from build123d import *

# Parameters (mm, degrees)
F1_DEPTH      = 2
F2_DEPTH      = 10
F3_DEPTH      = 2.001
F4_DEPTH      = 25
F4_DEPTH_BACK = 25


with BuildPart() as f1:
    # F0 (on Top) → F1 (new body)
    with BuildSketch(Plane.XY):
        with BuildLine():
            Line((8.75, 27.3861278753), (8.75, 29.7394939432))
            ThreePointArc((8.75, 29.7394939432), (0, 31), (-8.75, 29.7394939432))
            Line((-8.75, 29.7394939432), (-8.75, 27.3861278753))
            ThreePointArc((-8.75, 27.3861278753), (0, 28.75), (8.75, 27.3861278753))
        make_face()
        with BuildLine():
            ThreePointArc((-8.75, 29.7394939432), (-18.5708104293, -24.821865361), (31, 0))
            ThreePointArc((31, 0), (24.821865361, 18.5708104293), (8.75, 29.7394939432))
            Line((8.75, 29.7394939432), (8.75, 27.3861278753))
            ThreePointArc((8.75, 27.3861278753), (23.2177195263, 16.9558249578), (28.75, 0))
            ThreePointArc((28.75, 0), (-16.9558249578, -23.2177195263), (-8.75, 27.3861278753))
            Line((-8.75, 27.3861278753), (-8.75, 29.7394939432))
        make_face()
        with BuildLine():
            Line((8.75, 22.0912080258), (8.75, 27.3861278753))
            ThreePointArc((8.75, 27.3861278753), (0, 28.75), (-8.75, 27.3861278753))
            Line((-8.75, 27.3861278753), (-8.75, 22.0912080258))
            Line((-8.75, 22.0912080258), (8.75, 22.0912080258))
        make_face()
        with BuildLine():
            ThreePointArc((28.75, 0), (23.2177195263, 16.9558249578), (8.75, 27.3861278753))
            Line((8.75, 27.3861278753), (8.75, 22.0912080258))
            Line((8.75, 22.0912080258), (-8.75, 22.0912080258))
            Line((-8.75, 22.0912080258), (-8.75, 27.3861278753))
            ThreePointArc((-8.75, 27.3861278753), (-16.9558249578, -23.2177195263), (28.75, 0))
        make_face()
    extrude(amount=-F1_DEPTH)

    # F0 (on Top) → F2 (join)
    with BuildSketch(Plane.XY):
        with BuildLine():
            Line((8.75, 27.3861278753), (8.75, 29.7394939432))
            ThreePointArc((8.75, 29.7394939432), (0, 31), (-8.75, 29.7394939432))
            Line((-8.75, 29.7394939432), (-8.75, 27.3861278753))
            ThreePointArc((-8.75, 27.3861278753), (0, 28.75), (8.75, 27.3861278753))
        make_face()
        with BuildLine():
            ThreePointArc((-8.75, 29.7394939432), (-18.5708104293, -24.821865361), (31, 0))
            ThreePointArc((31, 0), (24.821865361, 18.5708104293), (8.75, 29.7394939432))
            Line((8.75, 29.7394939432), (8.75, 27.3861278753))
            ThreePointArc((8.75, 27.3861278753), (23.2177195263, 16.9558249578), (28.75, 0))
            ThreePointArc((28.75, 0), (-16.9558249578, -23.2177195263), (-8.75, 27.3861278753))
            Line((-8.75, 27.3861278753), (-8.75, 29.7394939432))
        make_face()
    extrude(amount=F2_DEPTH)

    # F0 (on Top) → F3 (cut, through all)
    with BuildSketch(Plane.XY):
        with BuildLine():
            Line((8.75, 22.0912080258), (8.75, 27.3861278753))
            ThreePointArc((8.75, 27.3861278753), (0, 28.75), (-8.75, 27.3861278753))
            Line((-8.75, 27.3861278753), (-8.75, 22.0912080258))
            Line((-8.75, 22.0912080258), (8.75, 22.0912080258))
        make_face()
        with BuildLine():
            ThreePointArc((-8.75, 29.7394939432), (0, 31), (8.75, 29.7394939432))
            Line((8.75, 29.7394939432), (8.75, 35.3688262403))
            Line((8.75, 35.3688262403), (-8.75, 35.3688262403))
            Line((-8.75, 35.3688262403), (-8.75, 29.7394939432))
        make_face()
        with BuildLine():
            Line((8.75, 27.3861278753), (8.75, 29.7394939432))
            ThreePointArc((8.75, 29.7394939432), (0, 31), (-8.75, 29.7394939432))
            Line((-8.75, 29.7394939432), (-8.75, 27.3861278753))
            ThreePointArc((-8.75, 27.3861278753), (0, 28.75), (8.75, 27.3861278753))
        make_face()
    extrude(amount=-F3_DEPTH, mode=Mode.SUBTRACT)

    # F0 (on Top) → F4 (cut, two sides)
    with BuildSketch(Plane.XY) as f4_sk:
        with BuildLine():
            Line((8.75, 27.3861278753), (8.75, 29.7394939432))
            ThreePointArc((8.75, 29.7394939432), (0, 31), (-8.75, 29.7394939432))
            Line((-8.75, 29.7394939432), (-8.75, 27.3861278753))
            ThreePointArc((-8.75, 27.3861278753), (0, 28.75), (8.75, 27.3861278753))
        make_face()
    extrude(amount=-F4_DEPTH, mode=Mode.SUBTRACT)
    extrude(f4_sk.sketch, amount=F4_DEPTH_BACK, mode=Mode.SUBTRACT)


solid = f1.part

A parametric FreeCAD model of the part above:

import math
import FreeCAD as App
import Part
import Sketcher
from FreeCAD import Vector
Q = App.Units.Quantity

doc = App.newDocument("Part")
body = doc.addObject("PartDesign::Body", "Body")

# Sketch on XY plane
sketch1 = doc.addObject("Sketcher::SketchObject", "Sketch")
body.addObject(sketch1)
sketch1.AttachmentSupport = (doc.XY_Plane, [""])
sketch1.MapMode = "FlatFace"
sketch1.addGeometry([
    Part.ArcOfCircle(Part.Circle(Vector(0, 0, 0), Vector(0, 0, 1), 31), math.radians(73.604981), math.radians(106.395019)),
    Part.ArcOfCircle(Part.Circle(Vector(0, 0, 0), Vector(0, 0, 1), 31), math.radians(106.395019), math.radians(360)),
    Part.ArcOfCircle(Part.Circle(Vector(0, 0, 0), Vector(0, 0, 1), 31), math.radians(0), math.radians(73.604981)),
], False)
sketch1.addConstraint([
    Sketcher.Constraint("Tangent", 0, 2, 1, 1),
    Sketcher.Constraint("Tangent", 1, 2, 2, 1),
    Sketcher.Constraint("Tangent", 2, 2, 0, 1),
    Sketcher.Constraint("Coincident", 0, 3, -1, 1),
    Sketcher.Constraint("PointOnObject", 1, 2, -1),
    Sketcher.Constraint("Horizontal", 0, 2, 2, 2),
    Sketcher.Constraint("Radius", 0, Q("31 mm")),
    Sketcher.Constraint("DistanceX", 0, 2, 2, 2, Q("17.5 mm")),
])
pad1 = doc.addObject("PartDesign::Pad", "Pad")
body.addObject(pad1)
pad1.Profile = sketch1
pad1.Length = 2
pad1.Reversed = True

# Sketch on XY plane
sketch2 = doc.addObject("Sketcher::SketchObject", "Sketch001")
body.addObject(sketch2)
sketch2.AttachmentSupport = (doc.XY_Plane, [""])
sketch2.MapMode = "FlatFace"
sketch2.addGeometry([
    Part.ArcOfCircle(Part.Circle(Vector(0, 0, 0), Vector(0, 0, 1), 31), math.radians(73.604981), math.radians(106.395019)),  # 0
    Part.ArcOfCircle(Part.Circle(Vector(0, 0, 0), Vector(0, 0, 1), 31), math.radians(106.395019), math.radians(360)),  # 1
    Part.ArcOfCircle(Part.Circle(Vector(0, 0, 0), Vector(0, 0, 1), 31), math.radians(0), math.radians(73.604981)),  # 2
    Part.ArcOfCircle(Part.Circle(Vector(0, 0, 0), Vector(0, 0, 1), 28.75), math.radians(72.281068), math.radians(107.718932)),  # 3
    Part.ArcOfCircle(Part.Circle(Vector(0, 0, 0), Vector(0, 0, 1), 28.75), math.radians(0), math.radians(72.281068)),  # 4
    Part.ArcOfCircle(Part.Circle(Vector(0, 0, 0), Vector(0, 0, 1), 28.75), math.radians(107.718932), math.radians(360)),  # 5
], False)
sketch2.addConstraint([
    Sketcher.Constraint("Tangent", 0, 2, 1, 1),
    Sketcher.Constraint("Tangent", 1, 2, 2, 1),
    Sketcher.Constraint("Tangent", 2, 2, 0, 1),
    Sketcher.Constraint("Tangent", 3, 1, 4, 2),
    Sketcher.Constraint("Tangent", 4, 1, 5, 2),
    Sketcher.Constraint("Tangent", 5, 1, 3, 2),
    Sketcher.Constraint("Coincident", 0, 3, -1, 1),
    Sketcher.Constraint("Coincident", 3, 3, -1, 1),
    Sketcher.Constraint("PointOnObject", 1, 2, -1),
    Sketcher.Constraint("PointOnObject", 4, 1, -1),
    Sketcher.Constraint("Horizontal", 0, 2, 2, 2),
    Sketcher.Constraint("Horizontal", 3, 1, 5, 1),
    Sketcher.Constraint("Vertical", 2, 2, 3, 1),
    Sketcher.Constraint("Radius", 0, Q("31 mm")),
    Sketcher.Constraint("Radius", 3, Q("28.75 mm")),
    Sketcher.Constraint("DistanceX", 0, 2, 2, 2, Q("17.5 mm")),
])
pad2 = doc.addObject("PartDesign::Pad", "Pad001")
body.addObject(pad2)
pad2.Profile = sketch2
pad2.Length = 10

# Sketch on XY plane
sketch3 = doc.addObject("Sketcher::SketchObject", "Sketch002")
body.addObject(sketch3)
sketch3.AttachmentSupport = (doc.XY_Plane, [""])
sketch3.MapMode = "FlatFace"
sketch3.addGeometry([
    Part.LineSegment(Vector(8.75, 22.091208, 0), Vector(8.75, 35.368826, 0)),
    Part.LineSegment(Vector(8.75, 35.368826, 0), Vector(-8.75, 35.368826, 0)),
    Part.LineSegment(Vector(-8.75, 35.368826, 0), Vector(-8.75, 22.091208, 0)),
    Part.LineSegment(Vector(-8.75, 22.091208, 0), Vector(8.75, 22.091208, 0)),
], False)
sketch3.addConstraint([
    Sketcher.Constraint("Coincident", 0, 2, 1, 1),
    Sketcher.Constraint("Coincident", 1, 2, 2, 1),
    Sketcher.Constraint("Coincident", 2, 2, 3, 1),
    Sketcher.Constraint("Coincident", 3, 2, 0, 1),
    Sketcher.Constraint("Vertical", 0),
    Sketcher.Constraint("Horizontal", 1),
    Sketcher.Constraint("Vertical", 2),
    Sketcher.Constraint("Horizontal", 3),
    Sketcher.Constraint("DistanceX", 1, 2, 1, 1, Q("17.5 mm")),
    Sketcher.Constraint("DistanceX", -1, 1, 0, 2, Q("8.75 mm")),
    Sketcher.Constraint("DistanceY", 0, 1, 0, 2, Q("13.277618 mm")),
    Sketcher.Constraint("DistanceY", -1, 1, 2, 2, Q("22.091208 mm")),
])
pocket1 = doc.addObject("PartDesign::Pocket", "Pocket")
body.addObject(pocket1)
pocket1.Profile = sketch3
pocket1.Type = "ThroughAll"

# Sketch on XY plane
sketch4 = doc.addObject("Sketcher::SketchObject", "Sketch003")
body.addObject(sketch4)
sketch4.AttachmentSupport = (doc.XY_Plane, [""])
sketch4.MapMode = "FlatFace"
sketch4.addGeometry([
    Part.LineSegment(Vector(8.75, 27.386128, 0), Vector(8.75, 29.739494, 0)),
    Part.ArcOfCircle(Part.Circle(Vector(0, 0, 0), Vector(0, 0, 1), 31), math.radians(73.604981), math.radians(106.395019)),
    Part.LineSegment(Vector(-8.75, 29.739494, 0), Vector(-8.75, 27.386128, 0)),
    Part.ArcOfCircle(Part.Circle(Vector(0, 0, 0), Vector(0, 0, 1), 28.75), math.radians(72.281068), math.radians(107.718932)),
], False)
sketch4.addConstraint([
    Sketcher.Constraint("Coincident", 0, 2, 1, 1),
    Sketcher.Constraint("Coincident", 1, 2, 2, 1),
    Sketcher.Constraint("Coincident", 2, 2, 3, 2),
    Sketcher.Constraint("Coincident", 3, 1, 0, 1),
    Sketcher.Constraint("Vertical", 0),
    Sketcher.Constraint("Vertical", 2),
    Sketcher.Constraint("Coincident", 1, 3, -1, 1),
    Sketcher.Constraint("Coincident", 3, 3, -1, 1),
    Sketcher.Constraint("Horizontal", 0, 2, 1, 2),
    Sketcher.Constraint("Radius", 1, Q("31 mm")),
    Sketcher.Constraint("Radius", 3, Q("28.75 mm")),
    Sketcher.Constraint("DistanceX", 1, 2, 0, 2, Q("17.5 mm")),
])
pocket2 = doc.addObject("PartDesign::Pocket", "Pocket001")
body.addObject(pocket2)
pocket2.Profile = sketch4
pocket2.Type = "ThroughAll"
pocket2.Midplane = True

doc.recompute()
